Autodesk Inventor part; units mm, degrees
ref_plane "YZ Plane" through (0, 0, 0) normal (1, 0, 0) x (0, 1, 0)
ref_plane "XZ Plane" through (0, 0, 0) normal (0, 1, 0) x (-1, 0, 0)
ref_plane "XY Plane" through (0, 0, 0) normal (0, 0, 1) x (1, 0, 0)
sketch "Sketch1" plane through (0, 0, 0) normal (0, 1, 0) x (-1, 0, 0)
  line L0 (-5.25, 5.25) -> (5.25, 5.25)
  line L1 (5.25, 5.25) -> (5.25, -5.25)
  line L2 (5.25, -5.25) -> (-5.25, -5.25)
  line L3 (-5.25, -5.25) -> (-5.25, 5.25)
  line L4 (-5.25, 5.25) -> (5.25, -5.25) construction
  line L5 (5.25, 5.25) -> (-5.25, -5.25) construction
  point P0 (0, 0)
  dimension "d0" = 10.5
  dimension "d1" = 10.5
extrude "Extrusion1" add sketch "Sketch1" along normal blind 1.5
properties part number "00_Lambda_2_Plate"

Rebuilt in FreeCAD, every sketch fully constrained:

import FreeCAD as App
import Part
import Sketcher

V = App.Vector


def add_polygon(sketch, points):
    """Adds a closed chain of lines whose ends are joined by coincident constraints."""
    first, n = sketch.GeometryCount, len(points)
    for a, b in zip(points, points[1:] + points[:1]):
        sketch.addGeometry(Part.LineSegment(App.Vector(*a, 0), App.Vector(*b, 0)), False)
    for i in range(n):
        sketch.addConstraint(Sketcher.Constraint("Coincident", first + i, 2, first + (i + 1) % n, 1))

doc = App.newDocument("Part")
body = doc.addObject("PartDesign::Body", "Body")

# Sketch on XZ plane
sketch1 = body.newObject("Sketcher::SketchObject", "Sketch")
sketch1.AttachmentSupport = (doc.getObject("XZ_Plane"), [""])
sketch1.MapMode = "FlatFace"
add_polygon(sketch1, [(-5.25, 5.25), (5.25, 5.25), (5.25, -5.25), (-5.25, -5.25)])  # lines 0-3
sketch1.addConstraint([
    Sketcher.Constraint("Horizontal", 0),
    Sketcher.Constraint("Vertical", 1),
    Sketcher.Constraint("Horizontal", 2),
    Sketcher.Constraint("Vertical", 3),
    Sketcher.Constraint("Symmetric", 0, 2, 2, 2, -1, 1),
    Sketcher.Constraint("Equal", 2, 1),
    Sketcher.Constraint("DistanceX", 0, 1, 0, 2, 10.5),
])
pad1 = body.newObject("PartDesign::Pad", "Pad")
pad1.Profile = sketch1
pad1.Length = 1.5
pad1.Reversed = True

doc.recompute()
